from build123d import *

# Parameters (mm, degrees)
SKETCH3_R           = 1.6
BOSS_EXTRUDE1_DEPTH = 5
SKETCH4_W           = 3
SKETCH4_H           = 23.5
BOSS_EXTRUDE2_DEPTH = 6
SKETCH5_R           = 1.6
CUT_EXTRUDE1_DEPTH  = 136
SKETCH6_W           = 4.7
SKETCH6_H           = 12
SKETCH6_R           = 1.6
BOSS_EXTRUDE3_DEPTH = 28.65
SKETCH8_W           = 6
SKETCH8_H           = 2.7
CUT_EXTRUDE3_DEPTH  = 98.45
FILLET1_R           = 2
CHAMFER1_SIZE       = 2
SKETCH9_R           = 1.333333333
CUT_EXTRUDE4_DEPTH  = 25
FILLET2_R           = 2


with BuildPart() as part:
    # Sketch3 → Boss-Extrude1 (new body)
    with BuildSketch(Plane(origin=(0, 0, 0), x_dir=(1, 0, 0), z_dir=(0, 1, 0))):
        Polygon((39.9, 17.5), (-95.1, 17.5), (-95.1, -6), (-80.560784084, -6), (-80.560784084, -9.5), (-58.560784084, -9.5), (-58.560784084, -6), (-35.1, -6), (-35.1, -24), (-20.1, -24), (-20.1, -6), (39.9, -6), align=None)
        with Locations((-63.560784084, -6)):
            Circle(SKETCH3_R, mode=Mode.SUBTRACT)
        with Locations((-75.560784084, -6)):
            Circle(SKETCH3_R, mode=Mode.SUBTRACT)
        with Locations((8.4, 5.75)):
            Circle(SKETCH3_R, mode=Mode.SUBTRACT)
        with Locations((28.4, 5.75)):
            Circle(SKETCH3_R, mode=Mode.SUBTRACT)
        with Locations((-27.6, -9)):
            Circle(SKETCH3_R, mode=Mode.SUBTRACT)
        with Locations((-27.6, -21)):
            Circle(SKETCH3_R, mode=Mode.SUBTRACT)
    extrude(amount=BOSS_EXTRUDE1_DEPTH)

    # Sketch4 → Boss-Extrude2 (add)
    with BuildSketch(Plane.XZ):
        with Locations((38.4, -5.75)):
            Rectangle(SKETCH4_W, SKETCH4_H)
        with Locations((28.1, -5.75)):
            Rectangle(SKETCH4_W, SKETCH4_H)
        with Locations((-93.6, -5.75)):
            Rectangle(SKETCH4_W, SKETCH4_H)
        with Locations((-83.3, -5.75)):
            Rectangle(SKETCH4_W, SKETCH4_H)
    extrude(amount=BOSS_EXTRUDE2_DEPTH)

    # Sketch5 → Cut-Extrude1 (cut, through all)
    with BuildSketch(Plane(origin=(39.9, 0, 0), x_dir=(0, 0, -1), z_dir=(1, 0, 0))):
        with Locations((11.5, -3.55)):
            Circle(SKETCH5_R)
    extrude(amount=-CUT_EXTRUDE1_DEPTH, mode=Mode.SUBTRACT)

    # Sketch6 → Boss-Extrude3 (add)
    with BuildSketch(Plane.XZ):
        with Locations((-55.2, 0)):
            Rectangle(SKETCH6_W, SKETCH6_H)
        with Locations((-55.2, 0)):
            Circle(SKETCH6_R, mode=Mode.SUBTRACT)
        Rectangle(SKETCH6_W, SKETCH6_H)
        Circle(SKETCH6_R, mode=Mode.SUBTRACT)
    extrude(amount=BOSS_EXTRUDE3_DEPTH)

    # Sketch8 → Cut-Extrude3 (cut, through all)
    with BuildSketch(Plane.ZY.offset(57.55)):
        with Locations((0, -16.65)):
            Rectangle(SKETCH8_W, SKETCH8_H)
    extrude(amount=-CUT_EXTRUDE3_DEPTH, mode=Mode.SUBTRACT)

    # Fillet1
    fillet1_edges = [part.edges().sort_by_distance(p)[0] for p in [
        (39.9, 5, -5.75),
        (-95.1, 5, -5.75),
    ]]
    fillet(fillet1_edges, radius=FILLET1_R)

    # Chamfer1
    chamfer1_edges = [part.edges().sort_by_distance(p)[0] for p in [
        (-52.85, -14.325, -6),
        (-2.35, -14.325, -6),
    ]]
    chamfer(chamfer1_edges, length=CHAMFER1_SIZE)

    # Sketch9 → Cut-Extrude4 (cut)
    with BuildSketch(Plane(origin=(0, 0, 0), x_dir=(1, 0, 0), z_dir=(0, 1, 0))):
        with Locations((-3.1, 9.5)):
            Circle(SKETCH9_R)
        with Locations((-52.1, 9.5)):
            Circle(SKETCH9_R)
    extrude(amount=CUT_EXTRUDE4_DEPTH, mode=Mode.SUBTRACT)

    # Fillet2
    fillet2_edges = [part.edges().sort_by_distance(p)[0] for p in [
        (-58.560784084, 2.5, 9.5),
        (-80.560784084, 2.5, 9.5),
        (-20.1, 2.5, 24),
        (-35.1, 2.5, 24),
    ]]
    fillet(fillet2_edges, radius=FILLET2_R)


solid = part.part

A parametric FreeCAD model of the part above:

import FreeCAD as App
import Part
import Sketcher
from FreeCAD import Vector


def edges_at(feature, points):
    """Names of the edges that pass closest to the given points."""
    edges = feature.Shape.Edges
    near = lambda p: min(range(len(edges)), key=lambda i: edges[i].distToShape(Part.Vertex(*p))[0])
    return sorted({f"Edge{near(p) + 1}" for p in points})


def add_polygon(sketch, points):
    """Adds a closed chain of lines whose ends are joined by coincident constraints."""
    first, n = sketch.GeometryCount, len(points)
    for a, b in zip(points, points[1:] + points[:1]):
        sketch.addGeometry(Part.LineSegment(App.Vector(*a, 0), App.Vector(*b, 0)), False)
    for i in range(n):
        sketch.addConstraint(Sketcher.Constraint("Coincident", first + i, 2, first + (i + 1) % n, 1))

doc = App.newDocument("Part")
params = doc.addObject("Spreadsheet::Sheet", "Params")
for row, (alias, value) in enumerate([
    ("sketch1_diameter", "3.2 mm"),
    ("sketch1_width", "135 mm"),
    ("sketch1_width2", "22 mm"),
    ("sketch1_width3", "15 mm"),
    ("sketch1_width4", "60 mm"),
    ("pad1_length", "5 mm"),
    ("sketch2_width", "3 mm"),
    ("sketch2_height", "23.5 mm"),
    ("pad2_length", "6 mm"),
    ("sketch3_diameter", "3.2 mm"),
    ("sketch4_diameter", "3.2 mm"),
    ("sketch4_height", "12 mm"),
    ("sketch4_width", "4.7 mm"),
    ("pad3_length", "28.65 mm"),
    ("sketch5_height", "6 mm"),
    ("sketch5_width", "2.7 mm"),
    ("fillet_radius", "2 mm"),
    ("chamfer_size", "2 mm"),
    ("pocket3_length", "25 mm"),
    ("fillet2_radius", "2 mm"),
], start=1):
    params.set(f"A{row}", alias)
    params.set(f"B{row}", "=" + value)
    params.setAlias(f"B{row}", alias)

body = doc.addObject("PartDesign::Body", "Body")

sketch1 = body.newObject("Sketcher::SketchObject", "Sketch")
sketch1.AttachmentSupport = (doc.getObject("XZ_Plane"), [""])
sketch1.MapMode = "FlatFace"
add_polygon(sketch1, [(39.9, -17.5), (-95.1, -17.5), (-95.1, 6), (-80.6, 6), (-80.6, 9.5), (-58.6, 9.5), (-58.6, 6), (-35.1, 6), (-35.1, 24), (-20.1, 24), (-20.1, 6), (39.9, 6)])
sketch1.addGeometry(Part.Circle(Vector(-27.6, 21, 0), Vector(0, 0, 1), 1.6), False)
sketch1.addGeometry(Part.Circle(Vector(-27.6, 9, 0), Vector(0, 0, 1), 1.6), False)
sketch1.addGeometry(Part.Circle(Vector(-75.6, 6, 0), Vector(0, 0, 1), 1.6), False)
sketch1.addGeometry(Part.Circle(Vector(-63.6, 6, 0), Vector(0, 0, 1), 1.6), False)
sketch1.addGeometry(Part.Circle(Vector(8.4, -5.8, 0), Vector(0, 0, 1), 1.6), False)
sketch1.addGeometry(Part.Circle(Vector(28.4, -5.8, 0), Vector(0, 0, 1), 1.6), False)
sketch1.addConstraint(Sketcher.Constraint("Horizontal", 0))
sketch1.addConstraint(Sketcher.Constraint("Vertical", 1))
sketch1.addConstraint(Sketcher.Constraint("Horizontal", 2))
sketch1.addConstraint(Sketcher.Constraint("Vertical", 3))
sketch1.addConstraint(Sketcher.Constraint("Horizontal", 4))
sketch1.addConstraint(Sketcher.Constraint("Vertical", 5))
sketch1.addConstraint(Sketcher.Constraint("Horizontal", 6))
sketch1.addConstraint(Sketcher.Constraint("Vertical", 7))
sketch1.addConstraint(Sketcher.Constraint("Horizontal", 8))
sketch1.addConstraint(Sketcher.Constraint("Vertical", 9))
sketch1.addConstraint(Sketcher.Constraint("Horizontal", 10))
sketch1.addConstraint(Sketcher.Constraint("Vertical", 11))
sketch1.addConstraint(Sketcher.Constraint("Equal", 12, 13))
sketch1.addConstraint(Sketcher.Constraint("Equal", 13, 14))
sketch1.addConstraint(Sketcher.Constraint("Equal", 14, 15))
sketch1.addConstraint(Sketcher.Constraint("Equal", 15, 16))
sketch1.addConstraint(Sketcher.Constraint("Equal", 16, 17))
sketch1.addConstraint(Sketcher.Constraint("Horizontal", 14, 3, 15, 3))
sketch1.addConstraint(Sketcher.Constraint("Horizontal", 16, 3, 17, 3))
sketch1.addConstraint(Sketcher.Constraint("Horizontal", 15, 3, 1, 2))
sketch1.addConstraint(Sketcher.Constraint("Horizontal", 2, 2, 5, 2))
sketch1.addConstraint(Sketcher.Constraint("Horizontal", 6, 2, 9, 2))
sketch1.addConstraint(Sketcher.Constraint("Vertical", 12, 3, 13, 3))
sketch1.addConstraint(Sketcher.Constraint("Diameter", 12, 3.2))
sketch1.addConstraint(Sketcher.Constraint("DistanceX", 0, 2, 0, 1, 135.0))
sketch1.addConstraint(Sketcher.Constraint("DistanceX", 4, 1, 4, 2, 22.0))
sketch1.addConstraint(Sketcher.Constraint("DistanceX", 8, 1, 8, 2, 15.0))
sketch1.addConstraint(Sketcher.Constraint("DistanceX", 10, 1, 10, 2, 60.0))
sketch1.addConstraint(Sketcher.Constraint("DistanceY", 7, 1, 7, 2, 18.0))
sketch1.addConstraint(Sketcher.Constraint("DistanceY", 1, 1, 1, 2, 23.5))
sketch1.addConstraint(Sketcher.Constraint("DistanceY", 3, 1, 3, 2, 3.5))
sketch1.addConstraint(Sketcher.Constraint("DistanceY", -1, 1, 12, 3, 21.0))
sketch1.addConstraint(Sketcher.Constraint("DistanceY", -1, 1, 13, 3, 9.0))
sketch1.addConstraint(Sketcher.Constraint("DistanceY", -1, 1, 14, 3, 6.0))
sketch1.addConstraint(Sketcher.Constraint("DistanceX", 14, 3, 15, 3, 12.0))
sketch1.addConstraint(Sketcher.Constraint("DistanceX", 13, 3, 16, 3, 36.0))
sketch1.addConstraint(Sketcher.Constraint("DistanceX", 16, 3, 17, 3, 20.0))
sketch1.addConstraint(Sketcher.Constraint("DistanceX", 2, 2, 14, 3, 5.0))
sketch1.addConstraint(Sketcher.Constraint("DistanceX", 12, 3, -1, 1, 27.6))
sketch1.addConstraint(Sketcher.Constraint("DistanceX", 0, 2, -1, 1, 95.1))
sketch1.addConstraint(Sketcher.Constraint("DistanceY", 16, 3, -1, 1, 5.75))
sketch1.addConstraint(Sketcher.Constraint("DistanceX", 2, 1, 2, 2, 14.539216))
sketch1.setExpression("Constraints[35]", "Params.sketch1_diameter")
sketch1.setExpression("Constraints[36]", "Params.sketch1_width")
sketch1.setExpression("Constraints[37]", "Params.sketch1_width2")
sketch1.setExpression("Constraints[38]", "Params.sketch1_width3")
sketch1.setExpression("Constraints[39]", "Params.sketch1_width4")
pad1 = body.newObject("PartDesign::Pad", "Pad")
pad1.Profile = sketch1
pad1.setExpression("Length", "Params.pad1_length")
pad1.Reversed = True

sketch2 = body.newObject("Sketcher::SketchObject", "Sketch001")
sketch2.AttachmentSupport = (doc.getObject("XZ_Plane"), [""])
sketch2.MapMode = "FlatFace"
add_polygon(sketch2, [(36.9, 6), (36.9, -17.5), (39.9, -17.5), (39.9, 6)])
add_polygon(sketch2, [(26.6, 6), (26.6, -17.5), (29.6, -17.5), (29.6, 6)])
add_polygon(sketch2, [(-95.1, 6), (-95.1, -17.5), (-92.1, -17.5), (-92.1, 6)])
add_polygon(sketch2, [(-84.8, 6), (-84.8, -17.5), (-81.8, -17.5), (-81.8, 6)])
sketch2.addConstraint(Sketcher.Constraint("Vertical", 0))
sketch2.addConstraint(Sketcher.Constraint("Horizontal", 1))
sketch2.addConstraint(Sketcher.Constraint("Vertical", 2))
sketch2.addConstraint(Sketcher.Constraint("Horizontal", 3))
sketch2.addConstraint(Sketcher.Constraint("Vertical", 4))
sketch2.addConstraint(Sketcher.Constraint("Horizontal", 5))
sketch2.addConstraint(Sketcher.Constraint("Vertical", 6))
sketch2.addConstraint(Sketcher.Constraint("Horizontal", 7))
sketch2.addConstraint(Sketcher.Constraint("Vertical", 8))
sketch2.addConstraint(Sketcher.Constraint("Horizontal", 9))
sketch2.addConstraint(Sketcher.Constraint("Vertical", 10))
sketch2.addConstraint(Sketcher.Constraint("Horizontal", 11))
sketch2.addConstraint(Sketcher.Constraint("Vertical", 12))
sketch2.addConstraint(Sketcher.Constraint("Horizontal", 13))
sketch2.addConstraint(Sketcher.Constraint("Vertical", 14))
sketch2.addConstraint(Sketcher.Constraint("Horizontal", 15))
sketch2.addConstraint(Sketcher.Constraint("Horizontal", 1, 2, 4, 2))
sketch2.addConstraint(Sketcher.Constraint("Horizontal", 3, 2, 6, 2))
sketch2.addConstraint(Sketcher.Constraint("Horizontal", 5, 2, 8, 2))
sketch2.addConstraint(Sketcher.Constraint("Horizontal", 7, 2, 10, 2))
sketch2.addConstraint(Sketcher.Constraint("Horizontal", 9, 2, 12, 2))
sketch2.addConstraint(Sketcher.Constraint("Horizontal", 11, 2, 14, 2))
sketch2.addConstraint(Sketcher.Constraint("Equal", 3, 5))
sketch2.addConstraint(Sketcher.Constraint("Equal", 7, 9))
sketch2.addConstraint(Sketcher.Constraint("Equal", 11, 13))
sketch2.addConstraint(Sketcher.Constraint("DistanceX", 1, 1, 1, 2, 3.0))
sketch2.addConstraint(Sketcher.Constraint("DistanceY", 0, 2, 0, 1, 23.5))
sketch2.addConstraint(Sketcher.Constraint("DistanceY", -1, 1, 2, 2, 6.0))
sketch2.addConstraint(Sketcher.Constraint("DistanceX", 8, 2, 0, 2, 132.0))
sketch2.addConstraint(Sketcher.Constraint("DistanceX", -1, 1, 0, 2, 36.9))
sketch2.addConstraint(Sketcher.Constraint("DistanceX", -1, 1, 4, 2, 26.6))
sketch2.addConstraint(Sketcher.Constraint("DistanceX", 12, 2, -1, 1, 84.8))
sketch2.setExpression("Constraints[41]", "Params.sketch2_width")
sketch2.setExpression("Constraints[42]", "Params.sketch2_height")
pad2 = body.newObject("PartDesign::Pad", "Pad001")
pad2.Profile = sketch2
pad2.setExpression("Length", "Params.pad2_length")

sketch3 = body.newObject("Sketcher::SketchObject", "Sketch002")
sketch3.AttachmentSupport = (doc.getObject("YZ_Plane"), [""])
sketch3.MapMode = "FlatFace"
sketch3.AttachmentOffset = App.Placement(Vector(0, 0, 39.9), App.Rotation())
sketch3.addGeometry(Part.Circle(Vector(-3.5, -11.5, 0), Vector(0, 0, 1), 1.6), False)
sketch3.addConstraint(Sketcher.Constraint("Diameter", 0, 3.2))
sketch3.addConstraint(Sketcher.Constraint("DistanceY", 0, 3, -1, 1, 11.5))
sketch3.addConstraint(Sketcher.Constraint("DistanceX", 0, 3, -1, 1, 3.55))
sketch3.setExpression("Constraints[0]", "Params.sketch3_diameter")
pocket1 = body.newObject("PartDesign::Pocket", "Pocket")
pocket1.Profile = sketch3
pocket1.Type = "ThroughAll"

sketch4 = body.newObject("Sketcher::SketchObject", "Sketch003")
sketch4.AttachmentSupport = (doc.getObject("XZ_Plane"), [""])
sketch4.MapMode = "FlatFace"
add_polygon(sketch4, [(-57.5, 6), (-57.5, -6), (-52.9, -6), (-52.9, 6)])
sketch4.addGeometry(Part.Circle(Vector(-55.2, 0, 0), Vector(0, 0, 1), 1.6), False)
add_polygon(sketch4, [(-2.4, 6), (-2.4, -6), (2.4, -6), (2.4, 6)])
sketch4.addGeometry(Part.Circle(Vector(0, 0, 0), Vector(0, 0, 1), 1.6), False)
sketch4.addConstraint(Sketcher.Constraint("Vertical", 0))
sketch4.addConstraint(Sketcher.Constraint("Horizontal", 1))
sketch4.addConstraint(Sketcher.Constraint("Vertical", 2))
sketch4.addConstraint(Sketcher.Constraint("Horizontal", 3))
sketch4.addConstraint(Sketcher.Constraint("Vertical", 5))
sketch4.addConstraint(Sketcher.Constraint("Horizontal", 6))
sketch4.addConstraint(Sketcher.Constraint("Vertical", 7))
sketch4.addConstraint(Sketcher.Constraint("Horizontal", 8))
sketch4.addConstraint(Sketcher.Constraint("Coincident", 9, 3, -1, 1))
sketch4.addConstraint(Sketcher.Constraint("Equal", 4, 9))
sketch4.addConstraint(Sketcher.Constraint("Symmetric", 5, 2, 7, 2, -1, 1))
sketch4.addConstraint(Sketcher.Constraint("PointOnObject", 4, 3, -1))
sketch4.addConstraint(Sketcher.Constraint("Horizontal", 1, 2, 5, 2))
sketch4.addConstraint(Sketcher.Constraint("Horizontal", 3, 2, 7, 2))
sketch4.addConstraint(Sketcher.Constraint("Equal", 3, 6))
sketch4.addConstraint(Sketcher.Constraint("Diameter", 4, 3.2))
sketch4.addConstraint(Sketcher.Constraint("DistanceY", 0, 2, 0, 1, 12.0))
sketch4.addConstraint(Sketcher.Constraint("DistanceX", 1, 1, 1, 2, 4.7))
sketch4.addConstraint(Sketcher.Constraint("DistanceX", 4, 3, -1, 1, 55.2))
sketch4.addConstraint(Sketcher.Constraint("DistanceX", 1, 2, 5, 2, 50.5))
sketch4.setExpression("Constraints[23]", "Params.sketch4_diameter")
sketch4.setExpression("Constraints[24]", "Params.sketch4_height")
sketch4.setExpression("Constraints[25]", "Params.sketch4_width")
pad3 = body.newObject("PartDesign::Pad", "Pad002")
pad3.Profile = sketch4
pad3.setExpression("Length", "Params.pad3_length")

sketch5 = body.newObject("Sketcher::SketchObject", "Sketch004")
sketch5.AttachmentSupport = (doc.getObject("YZ_Plane"), [""])
sketch5.MapMode = "FlatFace"
sketch5.AttachmentOffset = App.Placement(Vector(0, 0, -57.55), App.Rotation())
add_polygon(sketch5, [(-15.3, -3), (-18, -3), (-18, 3), (-15.3, 3)])
sketch5.addConstraint(Sketcher.Constraint("Horizontal", 0))
sketch5.addConstraint(Sketcher.Constraint("Vertical", 1))
sketch5.addConstraint(Sketcher.Constraint("Horizontal", 2))
sketch5.addConstraint(Sketcher.Constraint("Vertical", 3))
sketch5.addConstraint(Sketcher.Constraint("DistanceY", 1, 1, 1, 2, 6.0))
sketch5.addConstraint(Sketcher.Constraint("DistanceX", 0, 2, 0, 1, 2.7))
sketch5.addConstraint(Sketcher.Constraint("DistanceX", 0, 2, -1, 1, 18.0))
sketch5.addConstraint(Sketcher.Constraint("DistanceY", 0, 2, -1, 1, 3.0))
sketch5.setExpression("Constraints[8]", "Params.sketch5_height")
sketch5.setExpression("Constraints[9]", "Params.sketch5_width")
pocket2 = body.newObject("PartDesign::Pocket", "Pocket001")
pocket2.Profile = sketch5
pocket2.Type = "ThroughAll"
pocket2.Reversed = True
doc.recompute()

fillet = body.newObject("PartDesign::Fillet", "Fillet")
fillet.Base = (pocket2, edges_at(pocket2, [(39.9, 5, -5.75), (-95.1, 5, -5.75)]))
fillet.setExpression("Radius", "Params.fillet_radius")
doc.recompute()

chamfer = body.newObject("PartDesign::Chamfer", "Chamfer")
chamfer.Base = (fillet, edges_at(fillet, [(-52.85, -14.325, -6), (-2.35, -14.325, -6)]))
chamfer.setExpression("Size", "Params.chamfer_size")

sketch6 = body.newObject("Sketcher::SketchObject", "Sketch005")
sketch6.AttachmentSupport = (doc.getObject("XZ_Plane"), [""])
sketch6.MapMode = "FlatFace"
sketch6.addGeometry(Part.Circle(Vector(-3.1, -9.5, 0), Vector(0, 0, 1), 1.3), False)
sketch6.addGeometry(Part.Circle(Vector(-52.1, -9.5, 0), Vector(0, 0, 1), 1.3), False)
sketch6.addConstraint(Sketcher.Constraint("Equal", 0, 1))
sketch6.addConstraint(Sketcher.Constraint("Horizontal", 0, 3, 1, 3))
sketch6.addConstraint(Sketcher.Constraint("DistanceX", 1, 3, 0, 3, 49.0))
sketch6.addConstraint(Sketcher.Constraint("DistanceX", 0, 3, -1, 1, 3.1))
sketch6.addConstraint(Sketcher.Constraint("DistanceY", 0, 3, -1, 1, 9.5))
sketch6.addConstraint(Sketcher.Constraint("Diameter", 0, 2.666667))
pocket3 = body.newObject("PartDesign::Pocket", "Pocket002")
pocket3.Profile = sketch6
pocket3.setExpression("Length", "Params.pocket3_length")
doc.recompute()

fillet2 = body.newObject("PartDesign::Fillet", "Fillet001")
fillet2.Base = (pocket3, edges_at(pocket3, [
    (-58.561, 2.5, 9.5),
    (-80.561, 2.5, 9.5),
    (-20.1, 2.5, 24),
    (-35.1, 2.5, 24),
]))
fillet2.setExpression("Radius", "Params.fillet2_radius")

doc.recompute()
